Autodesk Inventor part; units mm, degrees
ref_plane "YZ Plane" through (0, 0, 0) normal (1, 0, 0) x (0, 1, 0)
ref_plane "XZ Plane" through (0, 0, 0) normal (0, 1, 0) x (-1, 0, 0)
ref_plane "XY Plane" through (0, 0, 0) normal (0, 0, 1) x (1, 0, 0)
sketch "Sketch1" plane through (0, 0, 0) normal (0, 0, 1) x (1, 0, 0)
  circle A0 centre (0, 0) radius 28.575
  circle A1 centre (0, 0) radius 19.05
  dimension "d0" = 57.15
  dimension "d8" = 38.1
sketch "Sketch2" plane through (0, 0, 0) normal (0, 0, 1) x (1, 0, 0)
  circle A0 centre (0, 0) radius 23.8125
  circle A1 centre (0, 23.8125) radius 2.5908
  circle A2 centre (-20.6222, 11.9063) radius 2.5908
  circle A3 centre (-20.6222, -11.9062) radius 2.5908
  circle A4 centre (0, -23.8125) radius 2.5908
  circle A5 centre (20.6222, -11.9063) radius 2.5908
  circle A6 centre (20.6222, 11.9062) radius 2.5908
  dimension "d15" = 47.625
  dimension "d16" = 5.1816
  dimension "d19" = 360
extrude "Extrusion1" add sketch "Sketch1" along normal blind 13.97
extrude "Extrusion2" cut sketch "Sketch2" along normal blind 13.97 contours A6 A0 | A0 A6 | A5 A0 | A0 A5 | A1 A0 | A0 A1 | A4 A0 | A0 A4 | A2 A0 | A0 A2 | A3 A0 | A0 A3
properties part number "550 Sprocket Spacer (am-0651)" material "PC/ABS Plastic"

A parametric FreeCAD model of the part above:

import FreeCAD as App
import Part
import Sketcher
from FreeCAD import Vector
Q = App.Units.Quantity

doc = App.newDocument("Part")
body = doc.addObject("PartDesign::Body", "Body")

# Sketch on XY plane
sketch1 = doc.addObject("Sketcher::SketchObject", "Sketch")
body.addObject(sketch1)
sketch1.AttachmentSupport = (doc.XY_Plane, [""])
sketch1.MapMode = "FlatFace"
sketch1.addGeometry([
    Part.Circle(Vector(0, 0, 0), Vector(0, 0, 1), 29),
    Part.Circle(Vector(0, 0, 0), Vector(0, 0, 1), 19),
], False)
sketch1.addConstraint([
    Sketcher.Constraint("Coincident", 0, 3, -1, 1),
    Sketcher.Constraint("Coincident", 1, 3, -1, 1),
    Sketcher.Constraint("Diameter", 1, Q("1.5 in")),
    Sketcher.Constraint("Diameter", 0, Q("2.25 in")),
])
pad1 = doc.addObject("PartDesign::Pad", "Pad")
body.addObject(pad1)
pad1.Profile = sketch1
pad1.Length = Q("0.55 in")

# Sketch on XY plane
sketch2 = doc.addObject("Sketcher::SketchObject", "Sketch001")
body.addObject(sketch2)
sketch2.AttachmentSupport = (doc.XY_Plane, [""])
sketch2.MapMode = "FlatFace"
sketch2.addGeometry([
    Part.Circle(Vector(20.6, 11.9, 0), Vector(0, 0, 1), 2.6),  # 0
    Part.Circle(Vector(20.6, -11.9, 0), Vector(0, 0, 1), 2.6),  # 1
    Part.Circle(Vector(0, 23.8, 0), Vector(0, 0, 1), 2.6),  # 2
    Part.Circle(Vector(0, -23.8, 0), Vector(0, 0, 1), 2.6),  # 3
    Part.Circle(Vector(-20.6, 11.9, 0), Vector(0, 0, 1), 2.6),  # 4
    Part.Circle(Vector(-20.6, -11.9, 0), Vector(0, 0, 1), 2.6),  # 5
], False)
sketch2.addConstraint([
    Sketcher.Constraint("Equal", 0, 1),
    Sketcher.Constraint("Equal", 1, 2),
    Sketcher.Constraint("Equal", 2, 3),
    Sketcher.Constraint("Equal", 3, 4),
    Sketcher.Constraint("Equal", 4, 5),
    Sketcher.Constraint("Symmetric", 2, 3, 3, 3, -1, 1),
    Sketcher.Constraint("Symmetric", 1, 3, 4, 3, -1, 1),
    Sketcher.Constraint("Symmetric", 0, 3, 5, 3, -1, 1),
    Sketcher.Constraint("Symmetric", 0, 3, 4, 3, -2),
    Sketcher.Constraint("PointOnObject", 2, 3, -2),
    Sketcher.Constraint("Diameter", 0, Q("0.204 in")),
    Sketcher.Constraint("DistanceY", 3, 3, 2, 3, Q("1.875 in")),
    Sketcher.Constraint("DistanceY", -1, 1, 0, 3, Q("0.468748 in")),
    Sketcher.Constraint("DistanceX", -1, 1, 0, 3, Q("0.8119 in")),
])
pocket1 = doc.addObject("PartDesign::Pocket", "Pocket")
body.addObject(pocket1)
pocket1.Profile = sketch2
pocket1.Length = Q("0.55 in")
pocket1.Reversed = True

doc.recompute()
